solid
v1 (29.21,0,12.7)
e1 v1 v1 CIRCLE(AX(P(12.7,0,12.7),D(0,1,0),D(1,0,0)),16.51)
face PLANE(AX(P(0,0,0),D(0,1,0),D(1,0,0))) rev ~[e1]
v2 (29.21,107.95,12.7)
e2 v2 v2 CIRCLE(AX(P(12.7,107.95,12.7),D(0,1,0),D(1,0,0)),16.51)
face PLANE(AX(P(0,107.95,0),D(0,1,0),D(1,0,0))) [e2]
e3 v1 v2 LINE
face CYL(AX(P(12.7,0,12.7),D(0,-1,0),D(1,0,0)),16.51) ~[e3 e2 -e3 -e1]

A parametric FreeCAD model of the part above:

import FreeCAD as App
import Part
import Sketcher
from FreeCAD import Vector
Q = App.Units.Quantity

doc = App.newDocument("Part")
body = doc.addObject("PartDesign::Body", "Body")

sketch1 = body.newObject("Sketcher::SketchObject", "Sketch")
sketch1.AttachmentSupport = (doc.getObject("XZ_Plane"), [""])
sketch1.MapMode = "FlatFace"
sketch1.addGeometry(Part.Circle(Vector(12.7, 12.7, 0), Vector(0, 0, 1), 16.51), False)
sketch1.addConstraint(Sketcher.Constraint("Diameter", 0, Q("1.3 in")))
sketch1.addConstraint(Sketcher.Constraint("DistanceX", -1, 1, 0, 3, Q("0.5 in")))
sketch1.addConstraint(Sketcher.Constraint("DistanceY", -1, 1, 0, 3, Q("0.5 in")))
pad1 = body.newObject("PartDesign::Pad", "Pad")
pad1.Profile = sketch1
pad1.Length = Q("4.25 in")
pad1.Reversed = True

doc.recompute()
